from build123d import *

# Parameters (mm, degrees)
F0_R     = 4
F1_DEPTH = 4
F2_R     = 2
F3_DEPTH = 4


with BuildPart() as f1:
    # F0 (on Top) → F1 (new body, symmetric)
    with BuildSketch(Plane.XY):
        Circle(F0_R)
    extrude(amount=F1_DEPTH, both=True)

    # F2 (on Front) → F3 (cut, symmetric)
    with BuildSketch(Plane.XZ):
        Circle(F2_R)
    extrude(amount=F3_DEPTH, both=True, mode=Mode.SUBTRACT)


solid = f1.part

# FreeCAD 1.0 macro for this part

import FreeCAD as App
import Part
import Sketcher
from FreeCAD import Vector
Q = App.Units.Quantity

doc = App.newDocument("Part")
params = doc.addObject("Spreadsheet::Sheet", "Params")
for row, (alias, value) in enumerate([
    ("sketch1_diameter", "8 mm"),
    ("pad1_length", "8 mm"),
    ("sketch2_diameter", "4 mm"),
    ("pocket1_length", "8 mm"),
], start=1):
    params.set(f"A{row}", alias)
    params.set(f"B{row}", "=" + value)
    params.setAlias(f"B{row}", alias)

body = doc.addObject("PartDesign::Body", "Body")

# Sketch on XY plane
sketch1 = body.newObject("Sketcher::SketchObject", "Sketch")
sketch1.AttachmentSupport = (doc.getObject("XY_Plane"), [""])
sketch1.MapMode = "FlatFace"
sketch1.addGeometry(Part.Circle(Vector(0, 0, 0), Vector(0, 0, 1), 4), False)
sketch1.addConstraint([
    Sketcher.Constraint("Coincident", 0, 3, -1, 1),
    Sketcher.Constraint("Diameter", 0, Q("8 mm")),
])
sketch1.setExpression("Constraints[1]", "Params.sketch1_diameter")
pad1 = body.newObject("PartDesign::Pad", "Pad")
pad1.Profile = sketch1
pad1.setExpression("Length", "Params.pad1_length")
pad1.Midplane = True

# Sketch on XZ plane
sketch2 = body.newObject("Sketcher::SketchObject", "Sketch001")
sketch2.AttachmentSupport = (doc.getObject("XZ_Plane"), [""])
sketch2.MapMode = "FlatFace"
sketch2.addGeometry(Part.Circle(Vector(0, 0, 0), Vector(0, 0, 1), 2), False)
sketch2.addConstraint([
    Sketcher.Constraint("Coincident", 0, 3, -1, 1),
    Sketcher.Constraint("Diameter", 0, Q("4 mm")),
])
sketch2.setExpression("Constraints[1]", "Params.sketch2_diameter")
pocket1 = body.newObject("PartDesign::Pocket", "Pocket")
pocket1.Profile = sketch2
pocket1.setExpression("Length", "Params.pocket1_length")
pocket1.Midplane = True

doc.recompute()
